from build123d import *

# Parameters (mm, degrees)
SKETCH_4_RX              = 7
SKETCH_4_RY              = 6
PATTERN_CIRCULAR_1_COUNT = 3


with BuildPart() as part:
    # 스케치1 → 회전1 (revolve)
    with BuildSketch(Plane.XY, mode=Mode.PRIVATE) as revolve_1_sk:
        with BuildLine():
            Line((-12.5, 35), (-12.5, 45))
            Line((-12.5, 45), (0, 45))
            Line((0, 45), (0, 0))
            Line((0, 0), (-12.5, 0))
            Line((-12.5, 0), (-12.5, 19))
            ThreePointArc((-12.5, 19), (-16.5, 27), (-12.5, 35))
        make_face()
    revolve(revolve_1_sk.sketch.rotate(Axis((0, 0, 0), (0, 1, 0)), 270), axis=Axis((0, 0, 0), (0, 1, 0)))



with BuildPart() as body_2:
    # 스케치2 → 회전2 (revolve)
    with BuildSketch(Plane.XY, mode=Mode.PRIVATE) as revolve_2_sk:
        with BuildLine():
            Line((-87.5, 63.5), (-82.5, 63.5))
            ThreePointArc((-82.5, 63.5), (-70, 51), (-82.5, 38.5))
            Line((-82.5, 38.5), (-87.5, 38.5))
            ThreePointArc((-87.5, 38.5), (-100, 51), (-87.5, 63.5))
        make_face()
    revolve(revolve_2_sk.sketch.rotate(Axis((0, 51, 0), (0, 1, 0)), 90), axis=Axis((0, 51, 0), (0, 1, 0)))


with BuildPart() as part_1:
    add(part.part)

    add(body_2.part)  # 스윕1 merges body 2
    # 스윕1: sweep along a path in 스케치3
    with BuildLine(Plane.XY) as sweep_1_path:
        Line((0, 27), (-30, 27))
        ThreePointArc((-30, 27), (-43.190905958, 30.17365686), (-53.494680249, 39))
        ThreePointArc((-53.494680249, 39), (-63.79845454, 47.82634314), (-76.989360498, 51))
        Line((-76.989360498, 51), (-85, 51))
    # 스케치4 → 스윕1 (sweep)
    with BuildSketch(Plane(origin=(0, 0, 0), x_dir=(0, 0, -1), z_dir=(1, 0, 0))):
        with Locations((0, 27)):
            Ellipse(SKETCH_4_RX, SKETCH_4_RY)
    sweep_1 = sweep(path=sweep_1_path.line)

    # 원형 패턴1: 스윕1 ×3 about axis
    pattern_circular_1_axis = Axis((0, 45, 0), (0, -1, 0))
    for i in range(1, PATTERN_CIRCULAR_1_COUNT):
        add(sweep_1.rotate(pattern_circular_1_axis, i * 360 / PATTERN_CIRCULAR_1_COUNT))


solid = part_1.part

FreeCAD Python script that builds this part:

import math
import FreeCAD as App
import Part
import Sketcher
from FreeCAD import Vector

doc = App.newDocument("Part")
params = doc.addObject("Spreadsheet::Sheet", "Params")
for row, (alias, value) in enumerate([
    ("sketch1_radius", "10 mm"),
    ("sketch1_height", "10 mm"),
    ("sketch1_height2", "19 mm"),
    ("sketch1_height3", "45 mm"),
    ("sketch1_width", "12.5 mm"),
    ("revolution_angle", "360 deg"),
    ("sketch2_radius", "12.5 mm"),
    ("sketch2_width", "5 mm"),
    ("revolution2_angle", "360 deg"),
    ("sketch4_radius", "29 mm"),
    ("sketch4_width", "30 mm"),
], start=1):
    params.set(f"A{row}", alias)
    params.set(f"B{row}", "=" + value)
    params.setAlias(f"B{row}", alias)

body = doc.addObject("PartDesign::Body", "Body")

# Sketch on XY plane
sketch1 = doc.addObject("Sketcher::SketchObject", "Sketch")
body.addObject(sketch1)
sketch1.AttachmentSupport = (doc.XY_Plane, [""])
sketch1.MapMode = "FlatFace"
sketch1.addGeometry(Part.LineSegment(Vector(-12, 45, 0), Vector(-12, 35, 0)), False)
sketch1.addGeometry(Part.ArcOfCircle(Part.Circle(Vector(-6, 27, 0), Vector(0, 0, 1), 10), math.radians(127), math.radians(233)), False)
sketch1.addGeometry(Part.LineSegment(Vector(-12, 19, 0), Vector(-12, 0, 0)), False)
sketch1.addGeometry(Part.LineSegment(Vector(-12, 0, 0), Vector(0, 0, 0)), False)
sketch1.addGeometry(Part.LineSegment(Vector(0, 0, 0), Vector(0, 45, 0)), False)
sketch1.addGeometry(Part.LineSegment(Vector(0, 45, 0), Vector(-12, 45, 0)), False)
sketch1.addConstraint(Sketcher.Constraint("Coincident", 0, 2, 1, 1))
sketch1.addConstraint(Sketcher.Constraint("Coincident", 1, 2, 2, 1))
sketch1.addConstraint(Sketcher.Constraint("Coincident", 2, 2, 3, 1))
sketch1.addConstraint(Sketcher.Constraint("Coincident", 3, 2, 4, 1))
sketch1.addConstraint(Sketcher.Constraint("Coincident", 4, 2, 5, 1))
sketch1.addConstraint(Sketcher.Constraint("Coincident", 5, 2, 0, 1))
sketch1.addConstraint(Sketcher.Constraint("Vertical", 0))
sketch1.addConstraint(Sketcher.Constraint("Vertical", 2))
sketch1.addConstraint(Sketcher.Constraint("Horizontal", 3))
sketch1.addConstraint(Sketcher.Constraint("Vertical", 4))
sketch1.addConstraint(Sketcher.Constraint("Horizontal", 5))
sketch1.addConstraint(Sketcher.Constraint("Coincident", 3, 2, -1, 1))
sketch1.addConstraint(Sketcher.Constraint("Vertical", 0, 2, 1, 2))
sketch1.addConstraint(Sketcher.Constraint("Radius", 1, 10.0))
sketch1.addConstraint(Sketcher.Constraint("DistanceY", 0, 2, 0, 1, 10.0))
sketch1.addConstraint(Sketcher.Constraint("DistanceY", 2, 2, 2, 1, 19.0))
sketch1.addConstraint(Sketcher.Constraint("DistanceY", 4, 1, 4, 2, 45.0))
sketch1.addConstraint(Sketcher.Constraint("DistanceX", 3, 1, 3, 2, 12.5))
sketch1.setExpression("Constraints[13]", "Params.sketch1_radius")
sketch1.setExpression("Constraints[14]", "Params.sketch1_height")
sketch1.setExpression("Constraints[15]", "Params.sketch1_height2")
sketch1.setExpression("Constraints[16]", "Params.sketch1_height3")
sketch1.setExpression("Constraints[17]", "Params.sketch1_width")
revolution = doc.addObject("PartDesign::Revolution", "Revolution")
body.addObject(revolution)
revolution.Profile = sketch1
revolution.ReferenceAxis = (sketch1, ["V_Axis"])
revolution.setExpression("Angle", "Params.revolution_angle")
body2 = doc.addObject("PartDesign::Body", "Body001")

# Sketch on XY plane
sketch2 = doc.addObject("Sketcher::SketchObject", "Sketch001")
body2.addObject(sketch2)
sketch2.AttachmentSupport = (doc.getObject("XY_Plane001"), [""])
sketch2.MapMode = "FlatFace"
sketch2.addGeometry(Part.LineSegment(Vector(-82, 64, 0), Vector(-88, 64, 0)), False)
sketch2.addGeometry(Part.ArcOfCircle(Part.Circle(Vector(-88, 51, 0), Vector(0, 0, 1), 12), math.radians(90), math.radians(270)), False)
sketch2.addGeometry(Part.LineSegment(Vector(-88, 38, 0), Vector(-82, 38, 0)), False)
sketch2.addGeometry(Part.ArcOfCircle(Part.Circle(Vector(-82, 51, 0), Vector(0, 0, 1), 12), math.radians(-90), math.radians(90)), False)
sketch2.addConstraint(Sketcher.Constraint("Tangent", 0, 2, 1, 1))
sketch2.addConstraint(Sketcher.Constraint("Tangent", 1, 2, 2, 1))
sketch2.addConstraint(Sketcher.Constraint("Tangent", 2, 2, 3, 1))
sketch2.addConstraint(Sketcher.Constraint("Tangent", 3, 2, 0, 1))
sketch2.addConstraint(Sketcher.Constraint("Horizontal", 0))
sketch2.addConstraint(Sketcher.Constraint("Horizontal", 2))
sketch2.addConstraint(Sketcher.Constraint("Radius", 1, 12.5))
sketch2.addConstraint(Sketcher.Constraint("DistanceX", 0, 2, 0, 1, 5.0))
sketch2.addConstraint(Sketcher.Constraint("DistanceY", -1, 1, 1, 3, 51.0))
sketch2.addConstraint(Sketcher.Constraint("DistanceX", 1, 3, -1, 1, 87.5))
sketch2.setExpression("Constraints[6]", "Params.sketch2_radius")
sketch2.setExpression("Constraints[7]", "Params.sketch2_width")
revolution2 = doc.addObject("PartDesign::Revolution", "Revolution001")
body2.addObject(revolution2)
revolution2.Profile = sketch2
revolution2.ReferenceAxis = (sketch2, ["V_Axis"])
revolution2.setExpression("Angle", "Params.revolution2_angle")
body.AllowCompound = True
doc.recompute()

boolean = doc.addObject("PartDesign::Boolean", "Boolean")
body.addObject(boolean)
boolean.Type = "Fuse"
boolean.addObjects([body2])

# Sketch on YZ plane
sketch3 = doc.addObject("Sketcher::SketchObject", "Sketch002")
body.addObject(sketch3)
sketch3.AttachmentSupport = (doc.YZ_Plane, [""])
sketch3.MapMode = "FlatFace"
sketch3.addGeometry(Part.Ellipse(Vector(27, -7, 0), Vector(33, 0, 0), Vector(27, 0, 0)), False)
sketch3.addConstraint(Sketcher.Constraint("Block", 0))

# Sketch on XY plane
sketch4 = doc.addObject("Sketcher::SketchObject", "Sketch003")
body.addObject(sketch4)
sketch4.AttachmentSupport = (doc.XY_Plane, [""])
sketch4.MapMode = "FlatFace"
sketch4.addGeometry(Part.LineSegment(Vector(0, 27, 0), Vector(-30, 27, 0)), False)
sketch4.addGeometry(Part.ArcOfCircle(Part.Circle(Vector(-30, 56, 0), Vector(0, 0, 1), 29), math.radians(-144), math.radians(-90)), False)
sketch4.addGeometry(Part.ArcOfCircle(Part.Circle(Vector(-77, 22, 0), Vector(0, 0, 1), 29), math.radians(36), math.radians(90)), False)
sketch4.addGeometry(Part.LineSegment(Vector(-77, 51, 0), Vector(-85, 51, 0)), False)
sketch4.addConstraint(Sketcher.Constraint("Tangent", 0, 2, 1, 2))
sketch4.addConstraint(Sketcher.Constraint("Tangent", 1, 1, 2, 1))
sketch4.addConstraint(Sketcher.Constraint("Tangent", 2, 2, 3, 1))
sketch4.addConstraint(Sketcher.Constraint("Horizontal", 0))
sketch4.addConstraint(Sketcher.Constraint("Horizontal", 3))
sketch4.addConstraint(Sketcher.Constraint("Equal", 1, 2))
sketch4.addConstraint(Sketcher.Constraint("PointOnObject", 0, 1, -2))
sketch4.addConstraint(Sketcher.Constraint("Radius", 1, 29.0))
sketch4.addConstraint(Sketcher.Constraint("DistanceX", 0, 2, 0, 1, 30.0))
sketch4.addConstraint(Sketcher.Constraint("DistanceY", -1, 1, 1, 3, 56.0))
sketch4.addConstraint(Sketcher.Constraint("DistanceY", -1, 1, 2, 3, 22.0))
sketch4.addConstraint(Sketcher.Constraint("DistanceX", 3, 2, -1, 1, 85.0))
sketch4.setExpression("Constraints[7]", "Params.sketch4_radius")
sketch4.setExpression("Constraints[8]", "Params.sketch4_width")
doc.recompute()

additivepipe = doc.addObject("PartDesign::AdditivePipe", "AdditivePipe")
body.addObject(additivepipe)
additivepipe.Profile = sketch3
additivepipe.Spine = (sketch4, ["Edge1", "Edge2", "Edge3", "Edge4"])
doc.recompute()

polarpattern = doc.addObject("PartDesign::PolarPattern", "PolarPattern")
body.addObject(polarpattern)
polarpattern.Originals = [additivepipe]
polarpattern.Axis = (doc.Y_Axis, [""])
polarpattern.Angle = 360
polarpattern.Occurrences = 3
body.Tip = polarpattern

doc.recompute()
